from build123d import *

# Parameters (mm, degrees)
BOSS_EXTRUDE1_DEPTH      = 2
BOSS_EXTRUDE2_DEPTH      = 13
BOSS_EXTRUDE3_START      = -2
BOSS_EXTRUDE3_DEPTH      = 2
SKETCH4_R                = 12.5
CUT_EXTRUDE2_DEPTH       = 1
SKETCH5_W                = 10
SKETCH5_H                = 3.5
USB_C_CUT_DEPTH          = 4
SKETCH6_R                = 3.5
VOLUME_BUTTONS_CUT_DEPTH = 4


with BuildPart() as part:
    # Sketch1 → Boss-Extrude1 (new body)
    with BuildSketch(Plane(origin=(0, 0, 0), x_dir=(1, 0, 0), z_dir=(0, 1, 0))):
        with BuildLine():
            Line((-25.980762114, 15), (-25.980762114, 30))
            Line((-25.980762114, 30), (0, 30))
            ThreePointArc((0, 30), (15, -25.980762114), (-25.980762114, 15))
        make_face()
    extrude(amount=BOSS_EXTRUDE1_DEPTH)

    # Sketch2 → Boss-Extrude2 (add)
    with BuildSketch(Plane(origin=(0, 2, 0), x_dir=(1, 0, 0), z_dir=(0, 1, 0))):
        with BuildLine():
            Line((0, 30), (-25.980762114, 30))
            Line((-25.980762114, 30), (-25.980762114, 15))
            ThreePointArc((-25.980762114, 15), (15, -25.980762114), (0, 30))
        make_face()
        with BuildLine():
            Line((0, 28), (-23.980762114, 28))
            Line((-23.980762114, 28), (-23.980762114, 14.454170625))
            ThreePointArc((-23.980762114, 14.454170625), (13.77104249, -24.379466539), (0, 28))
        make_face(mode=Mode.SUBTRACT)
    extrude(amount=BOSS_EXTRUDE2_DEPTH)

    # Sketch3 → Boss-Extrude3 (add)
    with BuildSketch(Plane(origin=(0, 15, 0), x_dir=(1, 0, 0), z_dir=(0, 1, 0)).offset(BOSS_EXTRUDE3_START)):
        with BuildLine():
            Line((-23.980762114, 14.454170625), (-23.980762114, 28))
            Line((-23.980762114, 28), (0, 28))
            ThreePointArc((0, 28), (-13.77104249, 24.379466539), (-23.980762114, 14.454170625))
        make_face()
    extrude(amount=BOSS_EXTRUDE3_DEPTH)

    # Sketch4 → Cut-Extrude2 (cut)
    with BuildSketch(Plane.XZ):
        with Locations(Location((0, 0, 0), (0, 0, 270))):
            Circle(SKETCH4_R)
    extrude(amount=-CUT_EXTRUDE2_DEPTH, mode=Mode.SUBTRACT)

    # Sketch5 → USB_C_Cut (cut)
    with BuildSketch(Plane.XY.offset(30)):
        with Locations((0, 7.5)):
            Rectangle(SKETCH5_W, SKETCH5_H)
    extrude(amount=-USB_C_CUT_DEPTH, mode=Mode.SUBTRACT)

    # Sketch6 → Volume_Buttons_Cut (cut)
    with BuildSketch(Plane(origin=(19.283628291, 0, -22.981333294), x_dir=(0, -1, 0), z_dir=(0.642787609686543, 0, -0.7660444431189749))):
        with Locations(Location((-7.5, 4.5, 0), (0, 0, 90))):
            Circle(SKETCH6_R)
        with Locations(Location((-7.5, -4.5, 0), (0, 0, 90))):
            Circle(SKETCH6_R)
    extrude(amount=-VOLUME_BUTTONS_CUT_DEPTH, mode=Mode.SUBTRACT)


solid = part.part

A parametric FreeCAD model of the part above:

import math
import FreeCAD as App
import Part
import Sketcher
Q = App.Units.Quantity


def add_polygon(sketch, points):
    """Adds a closed chain of lines whose ends are joined by coincident constraints."""
    first, n = sketch.GeometryCount, len(points)
    for a, b in zip(points, points[1:] + points[:1]):
        sketch.addGeometry(Part.LineSegment(App.Vector(*a, 0), App.Vector(*b, 0)), False)
    for i in range(n):
        sketch.addConstraint(Sketcher.Constraint("Coincident", first + i, 2, first + (i + 1) % n, 1))

doc = App.newDocument("Part")
body = doc.addObject("PartDesign::Body", "Body")

# Sketch on XZ plane
sketch1 = doc.addObject("Sketcher::SketchObject", "Sketch")
body.addObject(sketch1)
sketch1.AttachmentSupport = (doc.XZ_Plane, [""])
sketch1.MapMode = "FlatFace"
sketch1.addGeometry([
    Part.LineSegment(App.Vector(-26, -30, 0), App.Vector(-26, -15, 0)),
    Part.ArcOfCircle(Part.Circle(App.Vector(0, 0, 0), App.Vector(0, 0, 1), 30), math.radians(-90), math.radians(210)),
    Part.LineSegment(App.Vector(0, -30, 0), App.Vector(-26, -30, 0)),
], False)
sketch1.addConstraint([
    Sketcher.Constraint("Coincident", 0, 2, 1, 2),
    Sketcher.Constraint("Tangent", 1, 1, 2, 1),
    Sketcher.Constraint("Coincident", 2, 2, 0, 1),
    Sketcher.Constraint("Vertical", 0),
    Sketcher.Constraint("Horizontal", 2),
    Sketcher.Constraint("Coincident", 1, 3, -1, 1),
    Sketcher.Constraint("Radius", 1, Q("30 mm")),
    Sketcher.Constraint("DistanceY", 0, 1, 0, 2, Q("15 mm")),
])
pad1 = doc.addObject("PartDesign::Pad", "Pad")
body.addObject(pad1)
pad1.Profile = sketch1
pad1.Length = 2
pad1.Reversed = True

# Sketch on XZ plane
sketch2 = doc.addObject("Sketcher::SketchObject", "Sketch001")
body.addObject(sketch2)
sketch2.AttachmentSupport = (doc.XZ_Plane, [""])
sketch2.MapMode = "FlatFace"
sketch2.AttachmentOffset = App.Placement(App.Vector(0, 0, -2), App.Rotation())
sketch2.addGeometry([
    Part.LineSegment(App.Vector(0, -30, 0), App.Vector(-26, -30, 0)),  # 0
    Part.LineSegment(App.Vector(-26, -30, 0), App.Vector(-26, -15, 0)),  # 1
    Part.ArcOfCircle(Part.Circle(App.Vector(0, 0, 0), App.Vector(0, 0, 1), 30), math.radians(-90), math.radians(210)),  # 2
    Part.LineSegment(App.Vector(-24, -28, 0), App.Vector(0, -28, 0)),  # 3
    Part.ArcOfCircle(Part.Circle(App.Vector(0, 0, 0), App.Vector(0, 0, 1), 28), math.radians(-90), math.radians(211)),  # 4
    Part.LineSegment(App.Vector(-24, -14, 0), App.Vector(-24, -28, 0)),  # 5
], False)
sketch2.addConstraint([
    Sketcher.Constraint("Coincident", 0, 2, 1, 1),
    Sketcher.Constraint("Coincident", 1, 2, 2, 2),
    Sketcher.Constraint("Tangent", 2, 1, 0, 1),
    Sketcher.Constraint("Tangent", 3, 2, 4, 1),
    Sketcher.Constraint("Coincident", 4, 2, 5, 1),
    Sketcher.Constraint("Coincident", 5, 2, 3, 1),
    Sketcher.Constraint("Horizontal", 0),
    Sketcher.Constraint("Vertical", 1),
    Sketcher.Constraint("Horizontal", 3),
    Sketcher.Constraint("Vertical", 5),
    Sketcher.Constraint("Coincident", 2, 3, -1, 1),
    Sketcher.Constraint("Coincident", 4, 3, -1, 1),
    Sketcher.Constraint("Radius", 2, Q("30 mm")),
    Sketcher.Constraint("Radius", 4, Q("28 mm")),
    Sketcher.Constraint("DistanceY", 1, 1, 1, 2, Q("15 mm")),
    Sketcher.Constraint("DistanceX", 1, 2, 4, 2, Q("2 mm")),
])
pad2 = doc.addObject("PartDesign::Pad", "Pad001")
body.addObject(pad2)
pad2.Profile = sketch2
pad2.Length = 13
pad2.Reversed = True

# Sketch on XZ plane
sketch3 = doc.addObject("Sketcher::SketchObject", "Sketch002")
body.addObject(sketch3)
sketch3.AttachmentSupport = (doc.XZ_Plane, [""])
sketch3.MapMode = "FlatFace"
sketch3.AttachmentOffset = App.Placement(App.Vector(0, 0, -13), App.Rotation())
sketch3.addGeometry([
    Part.LineSegment(App.Vector(-24, -28, 0), App.Vector(-24, -14, 0)),
    Part.ArcOfCircle(Part.Circle(App.Vector(0, 0, 0), App.Vector(0, 0, 1), 28), math.radians(-149), math.radians(-90)),
    Part.LineSegment(App.Vector(0, -28, 0), App.Vector(-24, -28, 0)),
], False)
sketch3.addConstraint([
    Sketcher.Constraint("Coincident", 0, 2, 1, 1),
    Sketcher.Constraint("Tangent", 1, 2, 2, 1),
    Sketcher.Constraint("Coincident", 2, 2, 0, 1),
    Sketcher.Constraint("Vertical", 0),
    Sketcher.Constraint("Horizontal", 2),
    Sketcher.Constraint("Coincident", 1, 3, -1, 1),
    Sketcher.Constraint("Radius", 1, Q("28 mm")),
    Sketcher.Constraint("DistanceY", 0, 1, 0, 2, Q("13.545829 mm")),
])
pad3 = doc.addObject("PartDesign::Pad", "Pad002")
body.addObject(pad3)
pad3.Profile = sketch3
pad3.Length = 2
pad3.Reversed = True

# Sketch on XZ plane
sketch4 = doc.addObject("Sketcher::SketchObject", "Sketch003")
body.addObject(sketch4)
sketch4.AttachmentSupport = (doc.XZ_Plane, [""])
sketch4.MapMode = "FlatFace"
sketch4.addGeometry(Part.Circle(App.Vector(0, 0, 0), App.Vector(0, 0, 1), 12), False)
sketch4.addConstraint([
    Sketcher.Constraint("Coincident", 0, 3, -1, 1),
    Sketcher.Constraint("Diameter", 0, Q("25 mm")),
])
pocket1 = doc.addObject("PartDesign::Pocket", "Pocket")
body.addObject(pocket1)
pocket1.Profile = sketch4
pocket1.Length = 1

# Sketch on XY plane
sketch5 = doc.addObject("Sketcher::SketchObject", "Sketch004")
body.addObject(sketch5)
sketch5.AttachmentSupport = (doc.XY_Plane, [""])
sketch5.MapMode = "FlatFace"
sketch5.AttachmentOffset = App.Placement(App.Vector(0, 0, 30), App.Rotation())
add_polygon(sketch5, [(-5, 9.2), (-5, 5.8), (5, 5.8), (5, 9.2)])  # lines 0-3
sketch5.addConstraint([
    Sketcher.Constraint("Vertical", 0),
    Sketcher.Constraint("Horizontal", 1),
    Sketcher.Constraint("Vertical", 2),
    Sketcher.Constraint("Horizontal", 3),
    Sketcher.Constraint("DistanceX", 1, 1, 1, 2, Q("10 mm")),
    Sketcher.Constraint("DistanceY", 0, 2, 0, 1, Q("3.5 mm")),
    Sketcher.Constraint("DistanceX", 0, 2, -1, 1, Q("5 mm")),
    Sketcher.Constraint("DistanceY", -1, 1, 0, 2, Q("5.75 mm")),
])
pocket2 = doc.addObject("PartDesign::Pocket", "Pocket001")
body.addObject(pocket2)
pocket2.Profile = sketch5
pocket2.Length = 4

# Sketch on an angled plane
sketch6 = doc.addObject("Sketcher::SketchObject", "Sketch005")
body.addObject(sketch6)
sketch6.Placement = App.Placement(App.Vector(19.283628, 0, -22.981333), App.Rotation(App.Vector(0, -1, 0), App.Vector(-0.766044443, 0, -0.64278761), App.Vector(0.64278761, 0, -0.766044443), "ZXY"))
sketch6.addGeometry([
    Part.Circle(App.Vector(-7.5, 4.5, 0), App.Vector(0, 0, 1), 3.5),
    Part.Circle(App.Vector(-7.5, -4.5, 0), App.Vector(0, 0, 1), 3.5),
], False)
sketch6.addConstraint([
    Sketcher.Constraint("Equal", 0, 1),
    Sketcher.Constraint("Symmetric", 0, 3, 1, 3, -1),
    Sketcher.Constraint("Diameter", 0, Q("7 mm")),
    Sketcher.Constraint("DistanceY", 1, 3, 0, 3, Q("9 mm")),
    Sketcher.Constraint("DistanceX", 0, 3, -1, 1, Q("7.5 mm")),
])
pocket3 = doc.addObject("PartDesign::Pocket", "Pocket002")
body.addObject(pocket3)
pocket3.Profile = sketch6
pocket3.Length = 4

doc.recompute()
